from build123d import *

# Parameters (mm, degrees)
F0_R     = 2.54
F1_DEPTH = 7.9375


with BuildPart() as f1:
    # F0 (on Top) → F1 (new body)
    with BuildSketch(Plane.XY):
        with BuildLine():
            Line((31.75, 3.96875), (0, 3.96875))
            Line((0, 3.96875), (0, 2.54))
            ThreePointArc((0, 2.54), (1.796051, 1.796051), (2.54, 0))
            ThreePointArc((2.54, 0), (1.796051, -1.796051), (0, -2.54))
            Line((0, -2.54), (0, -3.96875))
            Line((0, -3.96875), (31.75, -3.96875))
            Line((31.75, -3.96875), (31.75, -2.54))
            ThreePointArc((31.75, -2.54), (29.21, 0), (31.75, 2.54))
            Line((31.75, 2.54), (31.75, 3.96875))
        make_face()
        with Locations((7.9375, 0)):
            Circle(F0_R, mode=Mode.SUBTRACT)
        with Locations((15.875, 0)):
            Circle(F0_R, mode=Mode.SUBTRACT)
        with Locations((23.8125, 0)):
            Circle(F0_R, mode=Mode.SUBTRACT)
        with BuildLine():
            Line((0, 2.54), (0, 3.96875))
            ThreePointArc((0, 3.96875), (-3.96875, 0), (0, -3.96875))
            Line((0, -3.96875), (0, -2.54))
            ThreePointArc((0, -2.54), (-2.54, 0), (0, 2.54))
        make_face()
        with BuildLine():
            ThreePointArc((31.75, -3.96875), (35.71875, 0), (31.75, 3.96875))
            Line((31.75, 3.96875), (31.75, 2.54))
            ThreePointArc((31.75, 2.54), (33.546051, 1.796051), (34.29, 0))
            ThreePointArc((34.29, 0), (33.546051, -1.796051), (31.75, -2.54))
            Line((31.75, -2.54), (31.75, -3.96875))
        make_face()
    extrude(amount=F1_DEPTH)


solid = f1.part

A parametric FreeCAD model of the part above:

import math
import FreeCAD as App
import Part
import Sketcher

V = App.Vector
Q = App.Units.Quantity

doc = App.newDocument("Part")
body = doc.addObject("PartDesign::Body", "Body")

# Sketch on XY plane
sketch1 = body.newObject("Sketcher::SketchObject", "Sketch")
sketch1.AttachmentSupport = (doc.getObject("XY_Plane"), [""])
sketch1.MapMode = "FlatFace"
sketch1.addGeometry(Part.LineSegment(V(31.8, 4, 0), V(0, 4, 0)), False)
sketch1.addGeometry(Part.ArcOfCircle(Part.Circle(V(0, 0, 0), V(0, 0, 1), 4), math.radians(90), math.radians(270)), False)
sketch1.addGeometry(Part.LineSegment(V(0, -4, 0), V(31.8, -4, 0)), False)
sketch1.addGeometry(Part.ArcOfCircle(Part.Circle(V(31.8, 0, 0), V(0, 0, 1), 4), math.radians(-90), math.radians(90)), False)
sketch1.addGeometry(Part.ArcOfCircle(Part.Circle(V(31.8, 0, 0), V(0, 0, 1), 2.5), math.radians(90), math.radians(270)), False)
sketch1.addGeometry(Part.ArcOfCircle(Part.Circle(V(31.7, 0, 0), V(0, 0, 1), 2.5), math.radians(0), math.radians(90)), False)
sketch1.addGeometry(Part.ArcOfCircle(Part.Circle(V(31.7, 0, 0), V(0, 0, 1), 2.5), math.radians(-90), math.radians(0)), False)
sketch1.addGeometry(Part.ArcOfCircle(Part.Circle(V(0, 0, 0), V(0, 0, 1), 2.5), math.radians(0), math.radians(90)), False)
sketch1.addGeometry(Part.ArcOfCircle(Part.Circle(V(0, 0, 0), V(0, 0, 1), 2.5), math.radians(-90), math.radians(0)), False)
sketch1.addGeometry(Part.ArcOfCircle(Part.Circle(V(0, 0, 0), V(0, 0, 1), 2.5), math.radians(90), math.radians(270)), False)
sketch1.addGeometry(Part.Circle(V(7.9, 0, 0), V(0, 0, 1), 2.5), False)
sketch1.addGeometry(Part.Circle(V(15.9, 0, 0), V(0, 0, 1), 2.5), False)
sketch1.addGeometry(Part.Circle(V(23.8, 0, 0), V(0, 0, 1), 2.5), False)
sketch1.addConstraint(Sketcher.Constraint("Tangent", 0, 2, 1, 1))
sketch1.addConstraint(Sketcher.Constraint("Tangent", 1, 2, 2, 1))
sketch1.addConstraint(Sketcher.Constraint("Tangent", 2, 2, 3, 1))
sketch1.addConstraint(Sketcher.Constraint("Tangent", 3, 2, 0, 1))
sketch1.addConstraint(Sketcher.Constraint("Tangent", 4, 1, 5, 2))
sketch1.addConstraint(Sketcher.Constraint("Tangent", 5, 1, 6, 2))
sketch1.addConstraint(Sketcher.Constraint("Tangent", 6, 1, 4, 2))
sketch1.addConstraint(Sketcher.Constraint("Tangent", 7, 1, 8, 2))
sketch1.addConstraint(Sketcher.Constraint("Tangent", 8, 1, 9, 2))
sketch1.addConstraint(Sketcher.Constraint("Tangent", 9, 1, 7, 2))
sketch1.addConstraint(Sketcher.Constraint("Horizontal", 0))
sketch1.addConstraint(Sketcher.Constraint("Horizontal", 2))
sketch1.addConstraint(Sketcher.Constraint("Coincident", 1, 3, -1, 1))
sketch1.addConstraint(Sketcher.Constraint("Coincident", 7, 3, -1, 1))
sketch1.addConstraint(Sketcher.Constraint("Coincident", 4, 3, 3, 3))
sketch1.addConstraint(Sketcher.Constraint("Equal", 6, 7))
sketch1.addConstraint(Sketcher.Constraint("Equal", 9, 10))
sketch1.addConstraint(Sketcher.Constraint("Equal", 10, 11))
sketch1.addConstraint(Sketcher.Constraint("Equal", 11, 12))
sketch1.addConstraint(Sketcher.Constraint("PointOnObject", 10, 3, -1))
sketch1.addConstraint(Sketcher.Constraint("PointOnObject", 11, 3, -1))
sketch1.addConstraint(Sketcher.Constraint("PointOnObject", 12, 3, -1))
sketch1.addConstraint(Sketcher.Constraint("PointOnObject", 5, 1, -1))
sketch1.addConstraint(Sketcher.Constraint("PointOnObject", 7, 1, -1))
sketch1.addConstraint(Sketcher.Constraint("PointOnObject", 8, 1, -2))
sketch1.addConstraint(Sketcher.Constraint("PointOnObject", 9, 1, -2))
sketch1.addConstraint(Sketcher.Constraint("Vertical", 3, 2, 4, 1))
sketch1.addConstraint(Sketcher.Constraint("Vertical", 4, 1, 6, 1))
sketch1.addConstraint(Sketcher.Constraint("Diameter", 10, Q("0.2 in")))
sketch1.addConstraint(Sketcher.Constraint("Radius", 1, Q("0.15625 in")))
sketch1.addConstraint(Sketcher.Constraint("DistanceX", 0, 2, 0, 1, Q("1.25 in")))
sketch1.addConstraint(Sketcher.Constraint("DistanceX", -1, 1, 10, 3, Q("0.3125 in")))
sketch1.addConstraint(Sketcher.Constraint("DistanceX", -1, 1, 11, 3, Q("0.625 in")))
sketch1.addConstraint(Sketcher.Constraint("DistanceX", -1, 1, 12, 3, Q("0.9375 in")))
pad1 = body.newObject("PartDesign::Pad", "Pad")
pad1.Profile = sketch1
pad1.Length = Q("0.3125 in")

doc.recompute()
